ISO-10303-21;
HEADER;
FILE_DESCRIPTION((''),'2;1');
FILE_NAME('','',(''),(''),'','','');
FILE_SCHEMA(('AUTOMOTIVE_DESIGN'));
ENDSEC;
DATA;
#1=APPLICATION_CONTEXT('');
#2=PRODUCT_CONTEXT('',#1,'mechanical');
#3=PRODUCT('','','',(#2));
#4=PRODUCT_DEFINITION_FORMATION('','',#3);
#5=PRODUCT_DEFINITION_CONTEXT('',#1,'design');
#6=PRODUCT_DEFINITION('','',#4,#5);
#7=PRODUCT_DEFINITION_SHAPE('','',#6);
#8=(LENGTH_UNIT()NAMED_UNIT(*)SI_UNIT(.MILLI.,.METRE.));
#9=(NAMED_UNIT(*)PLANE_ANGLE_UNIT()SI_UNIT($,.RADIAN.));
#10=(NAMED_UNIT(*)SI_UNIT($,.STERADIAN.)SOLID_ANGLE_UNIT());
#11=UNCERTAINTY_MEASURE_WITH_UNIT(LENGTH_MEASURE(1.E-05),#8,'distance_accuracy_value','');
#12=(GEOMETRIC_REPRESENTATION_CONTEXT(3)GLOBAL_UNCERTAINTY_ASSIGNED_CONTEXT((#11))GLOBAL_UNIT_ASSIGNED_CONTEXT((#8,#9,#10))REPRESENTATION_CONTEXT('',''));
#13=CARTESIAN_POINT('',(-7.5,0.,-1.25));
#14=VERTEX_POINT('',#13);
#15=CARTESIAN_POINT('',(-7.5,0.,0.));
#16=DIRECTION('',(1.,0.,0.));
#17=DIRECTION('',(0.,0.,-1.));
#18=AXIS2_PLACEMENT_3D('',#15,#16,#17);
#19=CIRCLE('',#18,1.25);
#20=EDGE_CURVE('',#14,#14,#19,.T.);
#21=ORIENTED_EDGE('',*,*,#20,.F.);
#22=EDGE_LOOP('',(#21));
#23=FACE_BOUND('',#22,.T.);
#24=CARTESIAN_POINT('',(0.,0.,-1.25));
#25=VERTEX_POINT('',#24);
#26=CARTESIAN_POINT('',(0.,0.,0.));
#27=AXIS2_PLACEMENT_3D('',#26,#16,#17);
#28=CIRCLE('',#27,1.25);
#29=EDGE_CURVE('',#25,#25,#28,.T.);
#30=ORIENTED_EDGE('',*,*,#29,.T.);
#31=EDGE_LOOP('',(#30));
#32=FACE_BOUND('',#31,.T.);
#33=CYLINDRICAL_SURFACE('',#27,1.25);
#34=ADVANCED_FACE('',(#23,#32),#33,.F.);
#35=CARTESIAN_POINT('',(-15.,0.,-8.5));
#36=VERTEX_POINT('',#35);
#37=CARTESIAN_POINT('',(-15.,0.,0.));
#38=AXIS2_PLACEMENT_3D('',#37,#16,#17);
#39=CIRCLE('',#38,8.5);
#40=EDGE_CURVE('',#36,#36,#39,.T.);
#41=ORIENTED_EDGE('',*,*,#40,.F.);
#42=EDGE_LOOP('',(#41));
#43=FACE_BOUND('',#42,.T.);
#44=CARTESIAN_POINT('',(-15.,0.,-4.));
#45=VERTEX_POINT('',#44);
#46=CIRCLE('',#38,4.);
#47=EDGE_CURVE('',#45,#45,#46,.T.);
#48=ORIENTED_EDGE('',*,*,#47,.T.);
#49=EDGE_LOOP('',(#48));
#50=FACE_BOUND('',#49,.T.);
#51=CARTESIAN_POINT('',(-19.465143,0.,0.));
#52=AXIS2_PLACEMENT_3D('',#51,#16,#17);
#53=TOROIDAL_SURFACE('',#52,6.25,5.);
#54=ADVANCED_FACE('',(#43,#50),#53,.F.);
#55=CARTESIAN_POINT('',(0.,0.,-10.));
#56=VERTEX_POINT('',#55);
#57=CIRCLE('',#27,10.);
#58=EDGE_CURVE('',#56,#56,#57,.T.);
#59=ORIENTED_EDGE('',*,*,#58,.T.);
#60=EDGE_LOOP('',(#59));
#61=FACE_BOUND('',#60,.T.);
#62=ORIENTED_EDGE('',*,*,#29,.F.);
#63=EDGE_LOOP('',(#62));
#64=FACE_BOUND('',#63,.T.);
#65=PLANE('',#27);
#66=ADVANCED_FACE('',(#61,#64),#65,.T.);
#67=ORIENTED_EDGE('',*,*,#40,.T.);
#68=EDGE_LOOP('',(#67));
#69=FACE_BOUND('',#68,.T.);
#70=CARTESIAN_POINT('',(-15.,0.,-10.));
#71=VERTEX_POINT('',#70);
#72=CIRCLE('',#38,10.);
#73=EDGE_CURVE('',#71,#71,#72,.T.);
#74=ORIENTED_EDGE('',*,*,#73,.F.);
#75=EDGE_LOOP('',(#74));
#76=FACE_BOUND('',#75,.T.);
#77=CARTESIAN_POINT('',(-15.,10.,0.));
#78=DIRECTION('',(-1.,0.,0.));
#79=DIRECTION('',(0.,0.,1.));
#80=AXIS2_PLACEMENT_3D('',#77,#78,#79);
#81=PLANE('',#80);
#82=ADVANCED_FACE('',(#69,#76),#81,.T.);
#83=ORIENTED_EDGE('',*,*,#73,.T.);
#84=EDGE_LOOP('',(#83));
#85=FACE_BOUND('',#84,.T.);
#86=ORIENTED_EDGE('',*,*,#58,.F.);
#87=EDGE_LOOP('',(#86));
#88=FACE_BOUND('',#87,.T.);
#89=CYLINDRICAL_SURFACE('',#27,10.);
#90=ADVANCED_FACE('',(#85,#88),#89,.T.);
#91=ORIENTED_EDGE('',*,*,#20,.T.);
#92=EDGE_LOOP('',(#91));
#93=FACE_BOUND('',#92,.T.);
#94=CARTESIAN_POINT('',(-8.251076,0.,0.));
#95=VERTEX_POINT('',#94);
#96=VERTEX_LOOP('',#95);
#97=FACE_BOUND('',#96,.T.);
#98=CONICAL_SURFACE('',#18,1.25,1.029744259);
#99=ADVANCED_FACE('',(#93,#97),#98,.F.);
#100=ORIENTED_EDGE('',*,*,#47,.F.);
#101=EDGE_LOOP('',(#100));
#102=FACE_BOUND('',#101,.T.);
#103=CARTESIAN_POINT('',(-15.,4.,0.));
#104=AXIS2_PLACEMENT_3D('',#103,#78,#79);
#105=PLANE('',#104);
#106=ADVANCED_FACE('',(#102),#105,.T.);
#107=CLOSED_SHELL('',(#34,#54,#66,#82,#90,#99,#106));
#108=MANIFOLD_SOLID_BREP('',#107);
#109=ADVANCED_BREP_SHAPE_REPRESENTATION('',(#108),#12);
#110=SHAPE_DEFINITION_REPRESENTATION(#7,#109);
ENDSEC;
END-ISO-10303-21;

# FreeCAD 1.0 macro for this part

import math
import FreeCAD as App
import Part
import Sketcher

V = App.Vector
Q = App.Units.Quantity

doc = App.newDocument("Part")
body = doc.addObject("PartDesign::Body", "Body")

# Sketch on XY plane
sketch1 = doc.addObject("Sketcher::SketchObject", "Sketch")
body.addObject(sketch1)
sketch1.AttachmentSupport = (doc.XY_Plane, [""])
sketch1.MapMode = "FlatFace"
sketch1.addGeometry([
    Part.LineSegment(V(0, 0, 0), V(0, 10, 0)),  # 0
    Part.LineSegment(V(0, 10, 0), V(-15, 10, 0)),  # 1
    Part.LineSegment(V(-15, 10, 0), V(-15, 8.5, 0)),  # 2
    Part.ArcOfCircle(Part.Circle(V(-19.5, 6.2, 0), V(0, 0, 1), 5), math.radians(-27), math.radians(27)),  # 3
    Part.LineSegment(V(-15, 4, 0), V(-15, 0, 0)),  # 4
    Part.LineSegment(V(-15, 0, 0), V(0, 0, 0)),  # 5
], False)
sketch1.addConstraint([
    Sketcher.Constraint("Coincident", 0, 2, 1, 1),
    Sketcher.Constraint("Coincident", 1, 2, 2, 1),
    Sketcher.Constraint("Coincident", 2, 2, 3, 2),
    Sketcher.Constraint("Coincident", 3, 1, 4, 1),
    Sketcher.Constraint("Coincident", 4, 2, 5, 1),
    Sketcher.Constraint("Coincident", 5, 2, 0, 1),
    Sketcher.Constraint("Vertical", 0),
    Sketcher.Constraint("Horizontal", 1),
    Sketcher.Constraint("Vertical", 2),
    Sketcher.Constraint("Vertical", 4),
    Sketcher.Constraint("Horizontal", 5),
    Sketcher.Constraint("Coincident", 5, 2, -1, 1),
    Sketcher.Constraint("Vertical", 2, 2, 3, 1),
    Sketcher.Constraint("Radius", 3, Q("5 mm")),
    Sketcher.Constraint("DistanceX", 1, 2, 1, 1, Q("15 mm")),
    Sketcher.Constraint("DistanceY", 0, 1, 0, 2, Q("10 mm")),
    Sketcher.Constraint("DistanceY", 4, 2, 4, 1, Q("4 mm")),
    Sketcher.Constraint("DistanceY", 2, 2, 2, 1, Q("1.5 mm")),
])
revolution = doc.addObject("PartDesign::Revolution", "Revolution")
body.addObject(revolution)
revolution.Profile = sketch1
revolution.ReferenceAxis = (sketch1, ["H_Axis"])
revolution.Angle = 360

# Sketch on YZ plane
sketch2 = doc.addObject("Sketcher::SketchObject", "Sketch001")
body.addObject(sketch2)
sketch2.AttachmentSupport = (doc.YZ_Plane, [""])
sketch2.MapMode = "FlatFace"
sketch2.addGeometry(Part.Circle(V(0, 0, 0), V(0, 0, 1), 1.2), False)
sketch2.addConstraint([
    Sketcher.Constraint("Coincident", 0, 3, -1, 1),
    Sketcher.Constraint("Diameter", 0, Q("2.5 mm")),
])
doc.recompute()
hole = doc.addObject("PartDesign::Hole", "Hole")
body.addObject(hole)
hole.Profile = sketch2
hole.ThreadType = "None"
hole.Diameter = 2.5
hole.DepthType = "Dimension"
hole.Depth = 7.5
hole.DrillPoint = "Angled"
hole.DrillPointAngle = 118

doc.recompute()
